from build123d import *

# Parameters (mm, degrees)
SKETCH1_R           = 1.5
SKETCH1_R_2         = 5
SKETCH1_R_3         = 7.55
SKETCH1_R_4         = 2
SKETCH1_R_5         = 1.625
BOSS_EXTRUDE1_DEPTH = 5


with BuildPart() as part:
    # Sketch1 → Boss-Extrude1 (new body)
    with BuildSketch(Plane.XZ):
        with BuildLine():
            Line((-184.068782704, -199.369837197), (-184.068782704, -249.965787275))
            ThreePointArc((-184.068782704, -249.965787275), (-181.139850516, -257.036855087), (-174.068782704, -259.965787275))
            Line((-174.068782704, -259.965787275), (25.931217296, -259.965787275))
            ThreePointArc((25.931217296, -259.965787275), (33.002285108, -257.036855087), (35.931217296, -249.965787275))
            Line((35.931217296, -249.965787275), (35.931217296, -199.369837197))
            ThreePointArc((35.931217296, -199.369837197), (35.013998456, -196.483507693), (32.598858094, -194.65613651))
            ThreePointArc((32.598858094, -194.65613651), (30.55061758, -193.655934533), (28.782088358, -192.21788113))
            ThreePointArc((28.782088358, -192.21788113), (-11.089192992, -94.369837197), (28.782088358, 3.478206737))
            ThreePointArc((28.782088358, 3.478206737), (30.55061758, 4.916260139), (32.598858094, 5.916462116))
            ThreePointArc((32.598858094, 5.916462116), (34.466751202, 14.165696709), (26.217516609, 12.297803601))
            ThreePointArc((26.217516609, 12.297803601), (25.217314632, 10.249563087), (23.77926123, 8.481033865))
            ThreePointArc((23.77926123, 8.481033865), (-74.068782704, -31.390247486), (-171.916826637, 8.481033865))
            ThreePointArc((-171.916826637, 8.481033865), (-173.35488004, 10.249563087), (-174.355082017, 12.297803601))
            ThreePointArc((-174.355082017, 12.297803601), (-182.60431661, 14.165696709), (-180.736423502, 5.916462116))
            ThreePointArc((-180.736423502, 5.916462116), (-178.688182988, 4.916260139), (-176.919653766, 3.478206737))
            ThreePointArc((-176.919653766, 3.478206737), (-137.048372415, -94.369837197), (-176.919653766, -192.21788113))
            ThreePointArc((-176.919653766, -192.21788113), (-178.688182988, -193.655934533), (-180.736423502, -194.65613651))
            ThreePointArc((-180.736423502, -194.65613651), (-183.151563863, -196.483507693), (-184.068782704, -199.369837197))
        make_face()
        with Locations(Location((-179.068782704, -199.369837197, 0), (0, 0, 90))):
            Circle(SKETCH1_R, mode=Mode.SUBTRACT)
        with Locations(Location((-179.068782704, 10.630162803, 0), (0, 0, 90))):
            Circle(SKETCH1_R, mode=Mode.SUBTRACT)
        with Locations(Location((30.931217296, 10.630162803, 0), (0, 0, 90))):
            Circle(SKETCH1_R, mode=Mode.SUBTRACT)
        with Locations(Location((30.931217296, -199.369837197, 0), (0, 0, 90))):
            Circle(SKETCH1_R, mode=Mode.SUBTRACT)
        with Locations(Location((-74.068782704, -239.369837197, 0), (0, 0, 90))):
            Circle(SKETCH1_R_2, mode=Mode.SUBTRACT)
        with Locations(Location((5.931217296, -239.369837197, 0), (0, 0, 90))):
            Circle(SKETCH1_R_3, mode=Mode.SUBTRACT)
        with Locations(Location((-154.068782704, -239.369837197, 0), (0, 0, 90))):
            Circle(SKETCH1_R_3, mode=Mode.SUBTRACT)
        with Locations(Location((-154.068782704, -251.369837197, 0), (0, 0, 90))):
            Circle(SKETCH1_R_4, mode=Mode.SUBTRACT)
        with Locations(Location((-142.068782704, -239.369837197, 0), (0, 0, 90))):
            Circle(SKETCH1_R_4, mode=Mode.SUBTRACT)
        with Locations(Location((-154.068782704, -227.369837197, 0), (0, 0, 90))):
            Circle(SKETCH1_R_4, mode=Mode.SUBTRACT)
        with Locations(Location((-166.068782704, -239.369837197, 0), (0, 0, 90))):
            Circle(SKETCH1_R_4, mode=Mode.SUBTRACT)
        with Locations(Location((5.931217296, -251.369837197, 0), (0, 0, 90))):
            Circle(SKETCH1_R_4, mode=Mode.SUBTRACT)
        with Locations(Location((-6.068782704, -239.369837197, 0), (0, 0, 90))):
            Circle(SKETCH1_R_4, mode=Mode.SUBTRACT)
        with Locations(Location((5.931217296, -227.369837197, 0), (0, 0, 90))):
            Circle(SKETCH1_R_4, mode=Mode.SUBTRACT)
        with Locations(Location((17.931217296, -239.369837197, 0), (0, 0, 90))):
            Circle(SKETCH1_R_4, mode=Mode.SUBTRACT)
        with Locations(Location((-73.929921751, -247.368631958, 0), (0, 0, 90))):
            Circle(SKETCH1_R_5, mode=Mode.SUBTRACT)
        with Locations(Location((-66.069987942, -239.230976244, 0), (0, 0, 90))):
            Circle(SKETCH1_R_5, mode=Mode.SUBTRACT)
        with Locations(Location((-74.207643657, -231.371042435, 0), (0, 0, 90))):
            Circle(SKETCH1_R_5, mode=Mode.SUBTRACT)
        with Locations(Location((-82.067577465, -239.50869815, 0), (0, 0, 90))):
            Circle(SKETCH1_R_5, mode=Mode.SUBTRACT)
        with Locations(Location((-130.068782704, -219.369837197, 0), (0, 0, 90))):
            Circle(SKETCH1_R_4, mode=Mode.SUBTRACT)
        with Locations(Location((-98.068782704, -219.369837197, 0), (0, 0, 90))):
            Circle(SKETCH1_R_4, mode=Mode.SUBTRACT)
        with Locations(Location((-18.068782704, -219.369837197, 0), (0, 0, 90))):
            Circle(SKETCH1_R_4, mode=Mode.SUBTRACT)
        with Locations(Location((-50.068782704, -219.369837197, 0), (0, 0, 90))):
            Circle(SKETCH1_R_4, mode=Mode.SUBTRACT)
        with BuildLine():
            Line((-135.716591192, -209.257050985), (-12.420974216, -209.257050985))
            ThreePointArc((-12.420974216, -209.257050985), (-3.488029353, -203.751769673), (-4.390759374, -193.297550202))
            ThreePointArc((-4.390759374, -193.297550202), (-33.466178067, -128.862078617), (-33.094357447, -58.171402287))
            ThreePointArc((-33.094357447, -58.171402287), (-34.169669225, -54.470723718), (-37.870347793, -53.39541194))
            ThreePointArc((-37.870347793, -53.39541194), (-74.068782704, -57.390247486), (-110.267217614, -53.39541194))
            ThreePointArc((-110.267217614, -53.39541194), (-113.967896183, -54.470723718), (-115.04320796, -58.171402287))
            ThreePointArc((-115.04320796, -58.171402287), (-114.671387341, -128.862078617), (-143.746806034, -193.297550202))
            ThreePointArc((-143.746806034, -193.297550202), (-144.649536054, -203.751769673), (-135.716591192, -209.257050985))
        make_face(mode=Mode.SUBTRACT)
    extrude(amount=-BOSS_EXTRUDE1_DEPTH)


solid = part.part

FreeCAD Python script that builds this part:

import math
import FreeCAD as App
import Part
import Sketcher
from FreeCAD import Vector
Q = App.Units.Quantity

doc = App.newDocument("Part")
body = doc.addObject("PartDesign::Body", "Body")

sketch1 = body.newObject("Sketcher::SketchObject", "Sketch")
sketch1.AttachmentSupport = (doc.getObject("XZ_Plane"), [""])
sketch1.MapMode = "FlatFace"
sketch1.addGeometry(Part.LineSegment(Vector(-184.1, -199.4, 0), Vector(-184.1, -250, 0)), False)
sketch1.addGeometry(Part.ArcOfCircle(Part.Circle(Vector(-174.1, -250, 0), Vector(0, 0, 1), 10), math.radians(180), math.radians(270)), False)
sketch1.addGeometry(Part.LineSegment(Vector(-174.1, -260, 0), Vector(25.9, -260, 0)), False)
sketch1.addGeometry(Part.ArcOfCircle(Part.Circle(Vector(25.9, -250, 0), Vector(0, 0, 1), 10), math.radians(-90), math.radians(0)), False)
sketch1.addGeometry(Part.LineSegment(Vector(35.9, -250, 0), Vector(35.9, -199.4, 0)), False)
sketch1.addGeometry(Part.ArcOfCircle(Part.Circle(Vector(30.9, -199.4, 0), Vector(0, 0, 1), 5), math.radians(0), math.radians(71)), False)
sketch1.addGeometry(Part.ArcOfCircle(Part.Circle(Vector(35.9, -185.2, 0), Vector(0, 0, 1), 10), math.radians(-136), math.radians(-109)), False)
sketch1.addGeometry(Part.ArcOfCircle(Part.Circle(Vector(128.9, -94.4, 0), Vector(0, 0, 1), 140), math.radians(136), math.radians(224)), False)
sketch1.addGeometry(Part.ArcOfCircle(Part.Circle(Vector(35.9, -3.5, 0), Vector(0, 0, 1), 10), math.radians(109), math.radians(136)), False)
sketch1.addGeometry(Part.ArcOfCircle(Part.Circle(Vector(30.9, 10.6, 0), Vector(0, 0, 1), 5), math.radians(-71), math.radians(161)), False)
sketch1.addGeometry(Part.ArcOfCircle(Part.Circle(Vector(16.8, 15.6, 0), Vector(0, 0, 1), 10), math.radians(-46), math.radians(-19)), False)
sketch1.addGeometry(Part.ArcOfCircle(Part.Circle(Vector(-74.1, 108.6, 0), Vector(0, 0, 1), 140), math.radians(-134), math.radians(-46)), False)
sketch1.addGeometry(Part.ArcOfCircle(Part.Circle(Vector(-164.9, 15.6, 0), Vector(0, 0, 1), 10), math.radians(-161), math.radians(-134)), False)
sketch1.addGeometry(Part.ArcOfCircle(Part.Circle(Vector(-179.1, 10.6, 0), Vector(0, 0, 1), 5), math.radians(19), math.radians(251)), False)
sketch1.addGeometry(Part.ArcOfCircle(Part.Circle(Vector(-184.1, -3.5, 0), Vector(0, 0, 1), 10), math.radians(44), math.radians(71)), False)
sketch1.addGeometry(Part.ArcOfCircle(Part.Circle(Vector(-277, -94.4, 0), Vector(0, 0, 1), 140), math.radians(-44), math.radians(44)), False)
sketch1.addGeometry(Part.ArcOfCircle(Part.Circle(Vector(-184.1, -185.2, 0), Vector(0, 0, 1), 10), math.radians(-71), math.radians(-44)), False)
sketch1.addGeometry(Part.ArcOfCircle(Part.Circle(Vector(-179.1, -199.4, 0), Vector(0, 0, 1), 5), math.radians(109), math.radians(180)), False)
sketch1.addGeometry(Part.Circle(Vector(-154.1, -251.4, 0), Vector(0, 0, 1), 2), False)
sketch1.addGeometry(Part.Circle(Vector(-166.1, -239.4, 0), Vector(0, 0, 1), 2), False)
sketch1.addGeometry(Part.Circle(Vector(-154.1, -239.4, 0), Vector(0, 0, 1), 7.5), False)
sketch1.addGeometry(Part.Circle(Vector(-154.1, -227.4, 0), Vector(0, 0, 1), 2), False)
sketch1.addGeometry(Part.Circle(Vector(-142.1, -239.4, 0), Vector(0, 0, 1), 2), False)
sketch1.addGeometry(Part.Circle(Vector(-179.1, -199.4, 0), Vector(0, 0, 1), 1.5), False)
sketch1.addGeometry(Part.Circle(Vector(-130.1, -219.4, 0), Vector(0, 0, 1), 2), False)
sketch1.addGeometry(Part.Circle(Vector(-82.1, -239.5, 0), Vector(0, 0, 1), 1.6), False)
sketch1.addGeometry(Part.Circle(Vector(-74.2, -231.4, 0), Vector(0, 0, 1), 1.6), False)
sketch1.addGeometry(Part.Circle(Vector(-98.1, -219.4, 0), Vector(0, 0, 1), 2), False)
sketch1.addGeometry(Part.Circle(Vector(-73.9, -247.4, 0), Vector(0, 0, 1), 1.6), False)
sketch1.addGeometry(Part.Circle(Vector(-74.1, -239.4, 0), Vector(0, 0, 1), 5), False)
sketch1.addGeometry(Part.Circle(Vector(-66.1, -239.2, 0), Vector(0, 0, 1), 1.6), False)
sketch1.addGeometry(Part.Circle(Vector(-50.1, -219.4, 0), Vector(0, 0, 1), 2), False)
sketch1.addGeometry(Part.Circle(Vector(-6.1, -239.4, 0), Vector(0, 0, 1), 2), False)
sketch1.addGeometry(Part.Circle(Vector(5.9, -251.4, 0), Vector(0, 0, 1), 2), False)
sketch1.addGeometry(Part.Circle(Vector(5.9, -239.4, 0), Vector(0, 0, 1), 7.5), False)
sketch1.addGeometry(Part.Circle(Vector(17.9, -239.4, 0), Vector(0, 0, 1), 2), False)
sketch1.addGeometry(Part.Circle(Vector(5.9, -227.4, 0), Vector(0, 0, 1), 2), False)
sketch1.addGeometry(Part.Circle(Vector(-18.1, -219.4, 0), Vector(0, 0, 1), 2), False)
sketch1.addGeometry(Part.Circle(Vector(30.9, -199.4, 0), Vector(0, 0, 1), 1.5), False)
sketch1.addGeometry(Part.LineSegment(Vector(-12.4, -209.3, 0), Vector(-135.7, -209.3, 0)), False)
sketch1.addGeometry(Part.ArcOfCircle(Part.Circle(Vector(-135.7, -199.3, 0), Vector(0, 0, 1), 10), math.radians(143), math.radians(270)), False)
sketch1.addGeometry(Part.ArcOfCircle(Part.Circle(Vector(-277, -94.4, 0), Vector(0, 0, 1), 166), math.radians(-37), math.radians(13)), False)
sketch1.addGeometry(Part.ArcOfCircle(Part.Circle(Vector(-111.1, -57.3, 0), Vector(0, 0, 1), 4), math.radians(77), math.radians(193)), False)
sketch1.addGeometry(Part.ArcOfCircle(Part.Circle(Vector(-74.1, 108.6, 0), Vector(0, 0, 1), 166), math.radians(-103), math.radians(-77)), False)
sketch1.addGeometry(Part.ArcOfCircle(Part.Circle(Vector(-37, -57.3, 0), Vector(0, 0, 1), 4), math.radians(-13), math.radians(103)), False)
sketch1.addGeometry(Part.ArcOfCircle(Part.Circle(Vector(128.9, -94.4, 0), Vector(0, 0, 1), 166), math.radians(167), math.radians(217)), False)
sketch1.addGeometry(Part.ArcOfCircle(Part.Circle(Vector(-12.4, -199.3, 0), Vector(0, 0, 1), 10), math.radians(-90), math.radians(37)), False)
sketch1.addGeometry(Part.Circle(Vector(-179.1, 10.6, 0), Vector(0, 0, 1), 1.5), False)
sketch1.addGeometry(Part.Circle(Vector(30.9, 10.6, 0), Vector(0, 0, 1), 1.5), False)
sketch1.addConstraint(Sketcher.Constraint("Tangent", 0, 2, 1, 1))
sketch1.addConstraint(Sketcher.Constraint("Tangent", 1, 2, 2, 1))
sketch1.addConstraint(Sketcher.Constraint("Tangent", 2, 2, 3, 1))
sketch1.addConstraint(Sketcher.Constraint("Tangent", 3, 2, 4, 1))
sketch1.addConstraint(Sketcher.Constraint("Tangent", 4, 2, 5, 1))
sketch1.addConstraint(Sketcher.Constraint("Tangent", 5, 2, 6, 2))
sketch1.addConstraint(Sketcher.Constraint("Tangent", 6, 1, 7, 2))
sketch1.addConstraint(Sketcher.Constraint("Tangent", 7, 1, 8, 2))
sketch1.addConstraint(Sketcher.Constraint("Tangent", 8, 1, 9, 1))
sketch1.addConstraint(Sketcher.Constraint("Tangent", 9, 2, 10, 2))
sketch1.addConstraint(Sketcher.Constraint("Tangent", 10, 1, 11, 2))
sketch1.addConstraint(Sketcher.Constraint("Tangent", 11, 1, 12, 2))
sketch1.addConstraint(Sketcher.Constraint("Tangent", 12, 1, 13, 1))
sketch1.addConstraint(Sketcher.Constraint("Tangent", 13, 2, 14, 2))
sketch1.addConstraint(Sketcher.Constraint("Tangent", 14, 1, 15, 2))
sketch1.addConstraint(Sketcher.Constraint("Tangent", 15, 1, 16, 2))
sketch1.addConstraint(Sketcher.Constraint("Tangent", 16, 1, 17, 1))
sketch1.addConstraint(Sketcher.Constraint("Tangent", 17, 2, 0, 1))
sketch1.addConstraint(Sketcher.Constraint("Tangent", 39, 2, 40, 2))
sketch1.addConstraint(Sketcher.Constraint("Tangent", 40, 1, 41, 1))
sketch1.addConstraint(Sketcher.Constraint("Tangent", 41, 2, 42, 2))
sketch1.addConstraint(Sketcher.Constraint("Tangent", 42, 1, 43, 1))
sketch1.addConstraint(Sketcher.Constraint("Tangent", 43, 2, 44, 2))
sketch1.addConstraint(Sketcher.Constraint("Tangent", 44, 1, 45, 1))
sketch1.addConstraint(Sketcher.Constraint("Tangent", 45, 2, 46, 2))
sketch1.addConstraint(Sketcher.Constraint("Tangent", 46, 1, 39, 1))
sketch1.addConstraint(Sketcher.Constraint("Vertical", 0))
sketch1.addConstraint(Sketcher.Constraint("Horizontal", 2))
sketch1.addConstraint(Sketcher.Constraint("Vertical", 4))
sketch1.addConstraint(Sketcher.Constraint("Horizontal", 39))
sketch1.addConstraint(Sketcher.Constraint("Coincident", 23, 3, 17, 3))
sketch1.addConstraint(Sketcher.Constraint("Coincident", 38, 3, 5, 3))
sketch1.addConstraint(Sketcher.Constraint("Coincident", 41, 3, 15, 3))
sketch1.addConstraint(Sketcher.Constraint("Coincident", 43, 3, 11, 3))
sketch1.addConstraint(Sketcher.Constraint("Coincident", 45, 3, 7, 3))
sketch1.addConstraint(Sketcher.Constraint("Coincident", 47, 3, 13, 3))
sketch1.addConstraint(Sketcher.Constraint("Coincident", 48, 3, 9, 3))
sketch1.addConstraint(Sketcher.Constraint("Equal", 1, 3))
sketch1.addConstraint(Sketcher.Constraint("Equal", 3, 6))
sketch1.addConstraint(Sketcher.Constraint("Equal", 6, 8))
sketch1.addConstraint(Sketcher.Constraint("Equal", 5, 9))
sketch1.addConstraint(Sketcher.Constraint("Equal", 8, 10))
sketch1.addConstraint(Sketcher.Constraint("Equal", 7, 11))
sketch1.addConstraint(Sketcher.Constraint("Equal", 10, 12))
sketch1.addConstraint(Sketcher.Constraint("Equal", 9, 13))
sketch1.addConstraint(Sketcher.Constraint("Equal", 12, 14))
sketch1.addConstraint(Sketcher.Constraint("Equal", 11, 15))
sketch1.addConstraint(Sketcher.Constraint("Equal", 14, 16))
sketch1.addConstraint(Sketcher.Constraint("Equal", 13, 17))
sketch1.addConstraint(Sketcher.Constraint("Equal", 18, 19))
sketch1.addConstraint(Sketcher.Constraint("Equal", 19, 21))
sketch1.addConstraint(Sketcher.Constraint("Equal", 21, 22))
sketch1.addConstraint(Sketcher.Constraint("Equal", 22, 24))
sketch1.addConstraint(Sketcher.Constraint("Equal", 25, 26))
sketch1.addConstraint(Sketcher.Constraint("Equal", 24, 27))
sketch1.addConstraint(Sketcher.Constraint("Equal", 26, 28))
sketch1.addConstraint(Sketcher.Constraint("Equal", 17, 29))
sketch1.addConstraint(Sketcher.Constraint("Equal", 28, 30))
sketch1.addConstraint(Sketcher.Constraint("Equal", 27, 31))
sketch1.addConstraint(Sketcher.Constraint("Equal", 31, 32))
sketch1.addConstraint(Sketcher.Constraint("Equal", 32, 33))
sketch1.addConstraint(Sketcher.Constraint("Equal", 20, 34))
sketch1.addConstraint(Sketcher.Constraint("Equal", 33, 35))
sketch1.addConstraint(Sketcher.Constraint("Equal", 35, 36))
sketch1.addConstraint(Sketcher.Constraint("Equal", 36, 37))
sketch1.addConstraint(Sketcher.Constraint("Equal", 23, 38))
sketch1.addConstraint(Sketcher.Constraint("Equal", 16, 40))
sketch1.addConstraint(Sketcher.Constraint("Equal", 41, 43))
sketch1.addConstraint(Sketcher.Constraint("Equal", 42, 44))
sketch1.addConstraint(Sketcher.Constraint("Equal", 43, 45))
sketch1.addConstraint(Sketcher.Constraint("Equal", 40, 46))
sketch1.addConstraint(Sketcher.Constraint("Equal", 38, 47))
sketch1.addConstraint(Sketcher.Constraint("Equal", 47, 48))
sketch1.addConstraint(Sketcher.Constraint("Horizontal", 10, 3, 12, 3))
sketch1.addConstraint(Sketcher.Constraint("Horizontal", 9, 3, 13, 3))
sketch1.addConstraint(Sketcher.Constraint("Horizontal", 8, 3, 14, 3))
sketch1.addConstraint(Sketcher.Constraint("Horizontal", 7, 3, 15, 3))
sketch1.addConstraint(Sketcher.Constraint("Horizontal", 6, 3, 16, 3))
sketch1.addConstraint(Sketcher.Constraint("Horizontal", 5, 3, 17, 3))
sketch1.addConstraint(Sketcher.Constraint("Horizontal", 19, 3, 20, 3))
sketch1.addConstraint(Sketcher.Constraint("Horizontal", 20, 3, 22, 3))
sketch1.addConstraint(Sketcher.Constraint("Horizontal", 24, 3, 27, 3))
sketch1.addConstraint(Sketcher.Constraint("Horizontal", 22, 3, 29, 3))
sketch1.addConstraint(Sketcher.Constraint("Horizontal", 27, 3, 31, 3))
sketch1.addConstraint(Sketcher.Constraint("Horizontal", 29, 3, 32, 3))
sketch1.addConstraint(Sketcher.Constraint("Horizontal", 18, 3, 33, 3))
sketch1.addConstraint(Sketcher.Constraint("Horizontal", 32, 3, 34, 3))
sketch1.addConstraint(Sketcher.Constraint("Horizontal", 34, 3, 35, 3))
sketch1.addConstraint(Sketcher.Constraint("Horizontal", 21, 3, 36, 3))
sketch1.addConstraint(Sketcher.Constraint("Horizontal", 31, 3, 37, 3))
sketch1.addConstraint(Sketcher.Constraint("Vertical", 6, 3, 8, 3))
sketch1.addConstraint(Sketcher.Constraint("Vertical", 5, 3, 9, 3))
sketch1.addConstraint(Sketcher.Constraint("Vertical", 18, 3, 20, 3))
sketch1.addConstraint(Sketcher.Constraint("Vertical", 20, 3, 21, 3))
sketch1.addConstraint(Sketcher.Constraint("Vertical", 11, 3, 29, 3))
sketch1.addConstraint(Sketcher.Constraint("Vertical", 33, 3, 34, 3))
sketch1.addConstraint(Sketcher.Constraint("Vertical", 34, 3, 36, 3))
sketch1.addConstraint(Sketcher.Constraint("Diameter", 18, Q("4 mm")))
sketch1.addConstraint(Sketcher.Constraint("Diameter", 23, Q("3 mm")))
sketch1.addConstraint(Sketcher.Constraint("Diameter", 29, Q("10 mm")))
sketch1.addConstraint(Sketcher.Constraint("Radius", 1, Q("10 mm")))
sketch1.addConstraint(Sketcher.Constraint("Radius", 7, Q("140 mm")))
sketch1.addConstraint(Sketcher.Constraint("Radius", 41, Q("166 mm")))
sketch1.addConstraint(Sketcher.Constraint("Radius", 42, Q("4 mm")))
sketch1.addConstraint(Sketcher.Constraint("Diameter", 20, Q("15.1 mm")))
sketch1.addConstraint(Sketcher.Constraint("Diameter", 25, Q("3.25 mm")))
sketch1.addConstraint(Sketcher.Constraint("DistanceX", 2, 1, 2, 2, Q("200 mm")))
sketch1.addConstraint(Sketcher.Constraint("DistanceY", 0, 2, 0, 1, Q("50.59595 mm")))
sketch1.addConstraint(Sketcher.Constraint("DistanceY", 25, 3, -1, 1, Q("239.508698 mm")))
sketch1.addConstraint(Sketcher.Constraint("DistanceX", 39, 2, 39, 1, Q("123.295617 mm")))
sketch1.addConstraint(Sketcher.Constraint("DistanceX", -1, 1, 6, 3, Q("35.93414 mm")))
sketch1.addConstraint(Sketcher.Constraint("DistanceY", 8, 3, -1, 1, Q("3.510939 mm")))
sketch1.addConstraint(Sketcher.Constraint("DistanceX", 12, 3, -1, 1, Q("164.927681 mm")))
sketch1.addConstraint(Sketcher.Constraint("DistanceX", 28, 3, -1, 1, Q("73.929922 mm")))
sketch1.addConstraint(Sketcher.Constraint("DistanceY", 28, 3, -1, 1, Q("247.368632 mm")))
sketch1.addConstraint(Sketcher.Constraint("DistanceX", 40, 3, -1, 1, Q("135.716591 mm")))
sketch1.addConstraint(Sketcher.Constraint("DistanceY", 40, 3, -1, 1, Q("199.257051 mm")))
sketch1.addConstraint(Sketcher.Constraint("DistanceX", 18, 3, -1, 1, Q("154.068783 mm")))
sketch1.addConstraint(Sketcher.Constraint("DistanceY", 18, 3, -1, 1, Q("251.369837 mm")))
sketch1.addConstraint(Sketcher.Constraint("DistanceX", 19, 3, -1, 1, Q("166.068783 mm")))
sketch1.addConstraint(Sketcher.Constraint("DistanceY", 19, 3, -1, 1, Q("239.369837 mm")))
sketch1.addConstraint(Sketcher.Constraint("DistanceY", 21, 3, -1, 1, Q("227.369837 mm")))
sketch1.addConstraint(Sketcher.Constraint("DistanceX", 22, 3, -1, 1, Q("142.068783 mm")))
sketch1.addConstraint(Sketcher.Constraint("DistanceX", 24, 3, -1, 1, Q("130.068783 mm")))
sketch1.addConstraint(Sketcher.Constraint("DistanceY", 24, 3, -1, 1, Q("219.369837 mm")))
sketch1.addConstraint(Sketcher.Constraint("DistanceX", 25, 3, -1, 1, Q("82.067577 mm")))
sketch1.addConstraint(Sketcher.Constraint("DistanceX", 26, 3, -1, 1, Q("74.207644 mm")))
sketch1.addConstraint(Sketcher.Constraint("DistanceY", 26, 3, -1, 1, Q("231.371042 mm")))
sketch1.addConstraint(Sketcher.Constraint("DistanceX", 27, 3, -1, 1, Q("98.068783 mm")))
sketch1.addConstraint(Sketcher.Constraint("DistanceX", 30, 3, -1, 1, Q("66.069988 mm")))
sketch1.addConstraint(Sketcher.Constraint("DistanceY", 30, 3, -1, 1, Q("239.230976 mm")))
sketch1.addConstraint(Sketcher.Constraint("DistanceX", 31, 3, -1, 1, Q("50.068783 mm")))
sketch1.addConstraint(Sketcher.Constraint("DistanceX", 32, 3, -1, 1, Q("6.068783 mm")))
sketch1.addConstraint(Sketcher.Constraint("DistanceX", -1, 1, 33, 3, Q("5.931217 mm")))
sketch1.addConstraint(Sketcher.Constraint("DistanceX", -1, 1, 35, 3, Q("17.931217 mm")))
sketch1.addConstraint(Sketcher.Constraint("DistanceX", 37, 3, -1, 1, Q("18.068783 mm")))
pad1 = body.newObject("PartDesign::Pad", "Pad")
pad1.Profile = sketch1
pad1.Length = 5
pad1.Reversed = True

doc.recompute()
